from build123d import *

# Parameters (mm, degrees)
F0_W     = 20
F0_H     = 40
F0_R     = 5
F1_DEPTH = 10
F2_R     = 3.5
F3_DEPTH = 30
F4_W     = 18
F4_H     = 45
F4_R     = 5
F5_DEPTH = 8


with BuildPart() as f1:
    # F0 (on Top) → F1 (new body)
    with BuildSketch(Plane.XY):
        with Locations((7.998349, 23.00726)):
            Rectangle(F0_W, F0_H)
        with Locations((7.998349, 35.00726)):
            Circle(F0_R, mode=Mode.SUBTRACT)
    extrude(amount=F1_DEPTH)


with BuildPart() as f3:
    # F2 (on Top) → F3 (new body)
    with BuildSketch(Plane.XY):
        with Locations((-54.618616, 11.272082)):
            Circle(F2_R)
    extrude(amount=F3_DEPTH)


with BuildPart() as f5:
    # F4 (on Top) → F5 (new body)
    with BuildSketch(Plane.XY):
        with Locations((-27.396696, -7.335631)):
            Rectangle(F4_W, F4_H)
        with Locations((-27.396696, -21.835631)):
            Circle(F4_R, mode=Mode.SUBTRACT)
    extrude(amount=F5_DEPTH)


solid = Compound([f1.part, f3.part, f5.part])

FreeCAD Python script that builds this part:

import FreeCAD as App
import Part
import Sketcher
from FreeCAD import Vector
Q = App.Units.Quantity


def add_polygon(sketch, points):
    """Adds a closed chain of lines whose ends are joined by coincident constraints."""
    first, n = sketch.GeometryCount, len(points)
    for a, b in zip(points, points[1:] + points[:1]):
        sketch.addGeometry(Part.LineSegment(App.Vector(*a, 0), App.Vector(*b, 0)), False)
    for i in range(n):
        sketch.addConstraint(Sketcher.Constraint("Coincident", first + i, 2, first + (i + 1) % n, 1))

doc = App.newDocument("Part")
body = doc.addObject("PartDesign::Body", "Body")

# Sketch on XY plane
sketch1 = body.newObject("Sketcher::SketchObject", "Sketch")
sketch1.AttachmentSupport = (doc.getObject("XY_Plane"), [""])
sketch1.MapMode = "FlatFace"
add_polygon(sketch1, [(-2, 43), (-2, 3), (18, 3), (18, 43)])  # lines 0-3
sketch1.addGeometry(Part.Circle(Vector(8, 35, 0), Vector(0, 0, 1), 5), False)  # 4
sketch1.addConstraint(Sketcher.Constraint("Vertical", 0))
sketch1.addConstraint(Sketcher.Constraint("Horizontal", 1))
sketch1.addConstraint(Sketcher.Constraint("Vertical", 2))
sketch1.addConstraint(Sketcher.Constraint("Horizontal", 3))
sketch1.addConstraint(Sketcher.Constraint("Diameter", 4, Q("10 mm")))
sketch1.addConstraint(Sketcher.Constraint("DistanceX", 1, 1, 1, 2, Q("20 mm")))
sketch1.addConstraint(Sketcher.Constraint("DistanceY", 0, 2, 0, 1, Q("40 mm")))
sketch1.addConstraint(Sketcher.Constraint("DistanceX", 0, 2, 4, 3, Q("10 mm")))
sketch1.addConstraint(Sketcher.Constraint("DistanceY", 0, 2, 4, 3, Q("32 mm")))
sketch1.addConstraint(Sketcher.Constraint("DistanceX", -1, 1, 4, 3, Q("7.998349 mm")))
sketch1.addConstraint(Sketcher.Constraint("DistanceY", -1, 1, 4, 3, Q("35.00726 mm")))
pad1 = body.newObject("PartDesign::Pad", "Pad")
pad1.Profile = sketch1
pad1.Length = 10
body2 = doc.addObject("PartDesign::Body", "Body001")

# Sketch on XY plane
sketch2 = body2.newObject("Sketcher::SketchObject", "Sketch001")
sketch2.AttachmentSupport = (doc.getObject("XY_Plane001"), [""])
sketch2.MapMode = "FlatFace"
sketch2.addGeometry(Part.Circle(Vector(-54.6, 11.3, 0), Vector(0, 0, 1), 3.5), False)
sketch2.addConstraint(Sketcher.Constraint("Diameter", 0, Q("7 mm")))
sketch2.addConstraint(Sketcher.Constraint("DistanceY", -1, 1, 0, 3, Q("11.272082 mm")))
sketch2.addConstraint(Sketcher.Constraint("DistanceX", 0, 3, -1, 1, Q("54.618616 mm")))
pad2 = body2.newObject("PartDesign::Pad", "Pad001")
pad2.Profile = sketch2
pad2.Length = 30
body3 = doc.addObject("PartDesign::Body", "Body002")

# Sketch on XY plane
sketch3 = body3.newObject("Sketcher::SketchObject", "Sketch002")
sketch3.AttachmentSupport = (doc.getObject("XY_Plane002"), [""])
sketch3.MapMode = "FlatFace"
add_polygon(sketch3, [(-36, 15), (-36, -30), (-18, -30), (-18, 15)])  # lines 0-3
sketch3.addGeometry(Part.Circle(Vector(-27, -22, 0), Vector(0, 0, 1), 5), False)  # 4
sketch3.addConstraint(Sketcher.Constraint("Vertical", 0))
sketch3.addConstraint(Sketcher.Constraint("Horizontal", 1))
sketch3.addConstraint(Sketcher.Constraint("Vertical", 2))
sketch3.addConstraint(Sketcher.Constraint("Horizontal", 3))
sketch3.addConstraint(Sketcher.Constraint("Diameter", 4, Q("10 mm")))
sketch3.addConstraint(Sketcher.Constraint("DistanceX", 1, 1, 1, 2, Q("18 mm")))
sketch3.addConstraint(Sketcher.Constraint("DistanceY", 0, 2, 0, 1, Q("45 mm")))
sketch3.addConstraint(Sketcher.Constraint("DistanceX", 0, 2, 4, 3, Q("9 mm")))
sketch3.addConstraint(Sketcher.Constraint("DistanceY", 0, 2, 4, 3, Q("8 mm")))
sketch3.addConstraint(Sketcher.Constraint("DistanceY", 4, 3, -1, 1, Q("21.835631 mm")))
sketch3.addConstraint(Sketcher.Constraint("DistanceX", 4, 3, -1, 1, Q("27.396696 mm")))
pad3 = body3.newObject("PartDesign::Pad", "Pad002")
pad3.Profile = sketch3
pad3.Length = 8

doc.recompute()
